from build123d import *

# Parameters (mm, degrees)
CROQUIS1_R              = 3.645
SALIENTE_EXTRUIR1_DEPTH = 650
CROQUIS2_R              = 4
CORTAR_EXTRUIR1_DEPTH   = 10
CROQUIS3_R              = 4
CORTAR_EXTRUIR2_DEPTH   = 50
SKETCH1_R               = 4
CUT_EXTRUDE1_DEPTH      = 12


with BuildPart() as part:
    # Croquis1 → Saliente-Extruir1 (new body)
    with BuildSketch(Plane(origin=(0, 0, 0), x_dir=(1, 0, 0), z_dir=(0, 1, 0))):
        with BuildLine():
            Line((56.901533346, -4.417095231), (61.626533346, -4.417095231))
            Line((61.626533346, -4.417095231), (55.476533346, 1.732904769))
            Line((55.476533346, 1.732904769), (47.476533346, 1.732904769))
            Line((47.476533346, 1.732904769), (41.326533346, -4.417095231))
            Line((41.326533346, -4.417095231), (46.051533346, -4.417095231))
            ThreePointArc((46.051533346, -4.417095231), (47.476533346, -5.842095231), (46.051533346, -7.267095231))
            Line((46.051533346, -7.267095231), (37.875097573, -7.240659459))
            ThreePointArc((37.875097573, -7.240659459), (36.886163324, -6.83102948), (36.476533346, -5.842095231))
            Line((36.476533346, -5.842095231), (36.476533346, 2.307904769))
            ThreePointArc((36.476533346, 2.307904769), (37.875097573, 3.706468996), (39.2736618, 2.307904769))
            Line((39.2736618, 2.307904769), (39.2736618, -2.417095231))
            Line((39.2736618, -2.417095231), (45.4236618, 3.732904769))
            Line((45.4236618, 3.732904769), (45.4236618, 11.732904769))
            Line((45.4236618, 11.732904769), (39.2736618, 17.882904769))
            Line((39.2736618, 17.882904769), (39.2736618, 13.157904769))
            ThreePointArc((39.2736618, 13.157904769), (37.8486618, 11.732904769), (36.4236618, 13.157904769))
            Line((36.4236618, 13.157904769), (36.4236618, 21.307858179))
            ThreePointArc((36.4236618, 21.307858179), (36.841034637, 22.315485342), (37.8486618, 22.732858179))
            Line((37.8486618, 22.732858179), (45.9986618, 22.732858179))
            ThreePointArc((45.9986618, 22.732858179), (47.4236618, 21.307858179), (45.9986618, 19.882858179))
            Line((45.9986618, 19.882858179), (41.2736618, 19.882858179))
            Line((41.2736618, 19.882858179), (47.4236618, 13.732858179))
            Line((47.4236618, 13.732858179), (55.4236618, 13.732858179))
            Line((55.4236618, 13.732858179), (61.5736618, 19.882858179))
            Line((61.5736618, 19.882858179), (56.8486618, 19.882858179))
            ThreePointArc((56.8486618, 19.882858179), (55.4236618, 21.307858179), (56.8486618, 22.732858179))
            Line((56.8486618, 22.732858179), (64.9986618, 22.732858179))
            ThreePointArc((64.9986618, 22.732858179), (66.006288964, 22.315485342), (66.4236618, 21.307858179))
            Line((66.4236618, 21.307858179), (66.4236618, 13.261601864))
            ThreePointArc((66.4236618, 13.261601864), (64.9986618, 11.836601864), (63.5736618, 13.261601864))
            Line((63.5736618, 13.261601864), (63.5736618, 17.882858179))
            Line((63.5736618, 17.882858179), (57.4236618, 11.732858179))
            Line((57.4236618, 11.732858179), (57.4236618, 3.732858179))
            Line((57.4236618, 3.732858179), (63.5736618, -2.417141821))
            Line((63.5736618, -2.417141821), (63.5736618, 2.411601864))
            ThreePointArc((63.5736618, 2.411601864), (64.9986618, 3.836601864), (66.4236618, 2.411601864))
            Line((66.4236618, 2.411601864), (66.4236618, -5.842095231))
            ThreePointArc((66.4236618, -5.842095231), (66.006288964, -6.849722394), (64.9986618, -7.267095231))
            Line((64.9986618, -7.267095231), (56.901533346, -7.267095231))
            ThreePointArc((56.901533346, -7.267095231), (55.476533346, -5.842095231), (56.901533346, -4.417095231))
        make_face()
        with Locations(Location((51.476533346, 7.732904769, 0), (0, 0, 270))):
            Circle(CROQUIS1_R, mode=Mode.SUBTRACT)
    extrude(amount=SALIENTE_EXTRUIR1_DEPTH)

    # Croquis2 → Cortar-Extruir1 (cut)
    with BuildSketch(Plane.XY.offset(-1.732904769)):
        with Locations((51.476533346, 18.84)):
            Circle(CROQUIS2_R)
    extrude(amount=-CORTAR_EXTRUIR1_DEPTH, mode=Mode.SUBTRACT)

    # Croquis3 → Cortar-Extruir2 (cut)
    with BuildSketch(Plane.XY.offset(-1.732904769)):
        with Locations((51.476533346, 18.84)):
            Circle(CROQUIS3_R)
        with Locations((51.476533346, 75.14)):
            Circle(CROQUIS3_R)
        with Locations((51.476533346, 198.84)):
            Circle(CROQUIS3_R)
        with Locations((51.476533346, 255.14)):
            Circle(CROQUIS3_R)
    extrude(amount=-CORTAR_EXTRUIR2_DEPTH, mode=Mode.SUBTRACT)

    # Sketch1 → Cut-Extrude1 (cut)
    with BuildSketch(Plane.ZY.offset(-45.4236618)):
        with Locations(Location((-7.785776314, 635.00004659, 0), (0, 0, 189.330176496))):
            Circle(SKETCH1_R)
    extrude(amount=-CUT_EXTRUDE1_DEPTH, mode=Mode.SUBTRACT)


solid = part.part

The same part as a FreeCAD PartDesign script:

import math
import FreeCAD as App
import Part
import Sketcher

doc = App.newDocument("Part")
body = doc.addObject("PartDesign::Body", "Body")

# Sketch on XZ plane
sketch1 = body.newObject("Sketcher::SketchObject", "Sketch")
sketch1.AttachmentSupport = (doc.getObject("XZ_Plane"), [""])
sketch1.MapMode = "FlatFace"
sketch1.addGeometry([
    Part.LineSegment(App.Vector(61.6, 4.4, 0), App.Vector(56.9, 4.4, 0)),  # 0
    Part.ArcOfCircle(Part.Circle(App.Vector(56.9, 5.8, 0), App.Vector(0, 0, 1), 1.4), math.radians(90), math.radians(270)),  # 1
    Part.LineSegment(App.Vector(56.9, 7.3, 0), App.Vector(65, 7.3, 0)),  # 2
    Part.ArcOfCircle(Part.Circle(App.Vector(65, 5.8, 0), App.Vector(0, 0, 1), 1.4), math.radians(0), math.radians(90)),  # 3
    Part.LineSegment(App.Vector(66.4, 5.8, 0), App.Vector(66.4, -2.4, 0)),  # 4
    Part.ArcOfCircle(Part.Circle(App.Vector(65, -2.4, 0), App.Vector(0, 0, 1), 1.4), math.radians(180), math.radians(360)),  # 5
    Part.LineSegment(App.Vector(63.6, -2.4, 0), App.Vector(63.6, 2.4, 0)),  # 6
    Part.LineSegment(App.Vector(63.6, 2.4, 0), App.Vector(57.4, -3.7, 0)),  # 7
    Part.LineSegment(App.Vector(57.4, -3.7, 0), App.Vector(57.4, -11.7, 0)),  # 8
    Part.LineSegment(App.Vector(57.4, -11.7, 0), App.Vector(63.6, -17.9, 0)),  # 9
    Part.LineSegment(App.Vector(63.6, -17.9, 0), App.Vector(63.6, -13.3, 0)),  # 10
    Part.ArcOfCircle(Part.Circle(App.Vector(65, -13.3, 0), App.Vector(0, 0, 1), 1.4), math.radians(0), math.radians(180)),  # 11
    Part.LineSegment(App.Vector(66.4, -13.3, 0), App.Vector(66.4, -21.3, 0)),  # 12
    Part.ArcOfCircle(Part.Circle(App.Vector(65, -21.3, 0), App.Vector(0, 0, 1), 1.4), math.radians(-90), math.radians(0)),  # 13
    Part.LineSegment(App.Vector(65, -22.7, 0), App.Vector(56.8, -22.7, 0)),  # 14
    Part.ArcOfCircle(Part.Circle(App.Vector(56.8, -21.3, 0), App.Vector(0, 0, 1), 1.4), math.radians(90), math.radians(270)),  # 15
    Part.LineSegment(App.Vector(56.8, -19.9, 0), App.Vector(61.6, -19.9, 0)),  # 16
    Part.LineSegment(App.Vector(61.6, -19.9, 0), App.Vector(55.4, -13.7, 0)),  # 17
    Part.LineSegment(App.Vector(55.4, -13.7, 0), App.Vector(47.4, -13.7, 0)),  # 18
    Part.LineSegment(App.Vector(47.4, -13.7, 0), App.Vector(41.3, -19.9, 0)),  # 19
    Part.LineSegment(App.Vector(41.3, -19.9, 0), App.Vector(46, -19.9, 0)),  # 20
    Part.ArcOfCircle(Part.Circle(App.Vector(46, -21.3, 0), App.Vector(0, 0, 1), 1.4), math.radians(-90), math.radians(90)),  # 21
    Part.LineSegment(App.Vector(46, -22.7, 0), App.Vector(37.8, -22.7, 0)),  # 22
    Part.ArcOfCircle(Part.Circle(App.Vector(37.8, -21.3, 0), App.Vector(0, 0, 1), 1.4), math.radians(-180), math.radians(-90)),  # 23
    Part.LineSegment(App.Vector(36.4, -21.3, 0), App.Vector(36.4, -13.2, 0)),  # 24
    Part.ArcOfCircle(Part.Circle(App.Vector(37.8, -13.2, 0), App.Vector(0, 0, 1), 1.4), math.radians(0), math.radians(180)),  # 25
    Part.LineSegment(App.Vector(39.3, -13.2, 0), App.Vector(39.3, -17.9, 0)),  # 26
    Part.LineSegment(App.Vector(39.3, -17.9, 0), App.Vector(45.4, -11.7, 0)),  # 27
    Part.LineSegment(App.Vector(45.4, -11.7, 0), App.Vector(45.4, -3.7, 0)),  # 28
    Part.LineSegment(App.Vector(45.4, -3.7, 0), App.Vector(39.3, 2.4, 0)),  # 29
    Part.LineSegment(App.Vector(39.3, 2.4, 0), App.Vector(39.3, -2.3, 0)),  # 30
    Part.ArcOfCircle(Part.Circle(App.Vector(37.9, -2.3, 0), App.Vector(0, 0, 1), 1.4), math.radians(180), math.radians(360)),  # 31
    Part.LineSegment(App.Vector(36.5, -2.3, 0), App.Vector(36.5, 5.8, 0)),  # 32
    Part.ArcOfCircle(Part.Circle(App.Vector(37.9, 5.8, 0), App.Vector(0, 0, 1), 1.4), math.radians(90), math.radians(180)),  # 33
    Part.LineSegment(App.Vector(37.9, 7.2, 0), App.Vector(46.1, 7.3, 0)),  # 34
    Part.ArcOfCircle(Part.Circle(App.Vector(46.1, 5.8, 0), App.Vector(0, 0, 1), 1.4), math.radians(-90), math.radians(90)),  # 35
    Part.LineSegment(App.Vector(46.1, 4.4, 0), App.Vector(41.3, 4.4, 0)),  # 36
    Part.LineSegment(App.Vector(41.3, 4.4, 0), App.Vector(47.5, -1.7, 0)),  # 37
    Part.LineSegment(App.Vector(47.5, -1.7, 0), App.Vector(55.5, -1.7, 0)),  # 38
    Part.LineSegment(App.Vector(55.5, -1.7, 0), App.Vector(61.6, 4.4, 0)),  # 39
    Part.Circle(App.Vector(51.5, -7.7, 0), App.Vector(0, 0, 1), 3.6),  # 40
], False)
sketch1.addConstraint([
    Sketcher.Constraint("Tangent", 0, 2, 1, 2),
    Sketcher.Constraint("Tangent", 1, 1, 2, 1),
    Sketcher.Constraint("Tangent", 2, 2, 3, 2),
    Sketcher.Constraint("Tangent", 3, 1, 4, 1),
    Sketcher.Constraint("Tangent", 4, 2, 5, 2),
    Sketcher.Constraint("Tangent", 5, 1, 6, 1),
    Sketcher.Constraint("Coincident", 6, 2, 7, 1),
    Sketcher.Constraint("Coincident", 7, 2, 8, 1),
    Sketcher.Constraint("Coincident", 8, 2, 9, 1),
    Sketcher.Constraint("Coincident", 9, 2, 10, 1),
    Sketcher.Constraint("Tangent", 10, 2, 11, 2),
    Sketcher.Constraint("Tangent", 11, 1, 12, 1),
    Sketcher.Constraint("Tangent", 12, 2, 13, 2),
    Sketcher.Constraint("Tangent", 13, 1, 14, 1),
    Sketcher.Constraint("Tangent", 14, 2, 15, 2),
    Sketcher.Constraint("Tangent", 15, 1, 16, 1),
    Sketcher.Constraint("Coincident", 16, 2, 17, 1),
    Sketcher.Constraint("Coincident", 17, 2, 18, 1),
    Sketcher.Constraint("Coincident", 18, 2, 19, 1),
    Sketcher.Constraint("Coincident", 19, 2, 20, 1),
    Sketcher.Constraint("Tangent", 20, 2, 21, 2),
    Sketcher.Constraint("Tangent", 21, 1, 22, 1),
    Sketcher.Constraint("Tangent", 22, 2, 23, 2),
    Sketcher.Constraint("Tangent", 23, 1, 24, 1),
    Sketcher.Constraint("Tangent", 24, 2, 25, 2),
    Sketcher.Constraint("Tangent", 25, 1, 26, 1),
    Sketcher.Constraint("Coincident", 26, 2, 27, 1),
    Sketcher.Constraint("Coincident", 27, 2, 28, 1),
    Sketcher.Constraint("Coincident", 28, 2, 29, 1),
    Sketcher.Constraint("Coincident", 29, 2, 30, 1),
    Sketcher.Constraint("Tangent", 30, 2, 31, 2),
    Sketcher.Constraint("Tangent", 31, 1, 32, 1),
    Sketcher.Constraint("Tangent", 32, 2, 33, 2),
    Sketcher.Constraint("Coincident", 33, 1, 34, 1),
    Sketcher.Constraint("Coincident", 34, 2, 35, 2),
    Sketcher.Constraint("Tangent", 35, 1, 36, 1),
    Sketcher.Constraint("Coincident", 36, 2, 37, 1),
    Sketcher.Constraint("Coincident", 37, 2, 38, 1),
    Sketcher.Constraint("Coincident", 38, 2, 39, 1),
    Sketcher.Constraint("Coincident", 39, 2, 0, 1),
    Sketcher.Constraint("Horizontal", 0),
    Sketcher.Constraint("Horizontal", 2),
    Sketcher.Constraint("Vertical", 4),
    Sketcher.Constraint("Vertical", 6),
    Sketcher.Constraint("Vertical", 8),
    Sketcher.Constraint("Vertical", 10),
    Sketcher.Constraint("Vertical", 12),
    Sketcher.Constraint("Horizontal", 14),
    Sketcher.Constraint("Horizontal", 16),
    Sketcher.Constraint("Horizontal", 18),
    Sketcher.Constraint("Horizontal", 20),
    Sketcher.Constraint("Horizontal", 22),
    Sketcher.Constraint("Vertical", 24),
    Sketcher.Constraint("Vertical", 26),
    Sketcher.Constraint("Vertical", 28),
    Sketcher.Constraint("Vertical", 30),
    Sketcher.Constraint("Vertical", 32),
    Sketcher.Constraint("Horizontal", 36),
    Sketcher.Constraint("Horizontal", 38),
    Sketcher.Constraint("Equal", 1, 3),
    Sketcher.Constraint("Equal", 3, 5),
    Sketcher.Constraint("Equal", 5, 11),
    Sketcher.Constraint("Equal", 11, 13),
    Sketcher.Constraint("Equal", 13, 15),
    Sketcher.Constraint("Equal", 15, 21),
    Sketcher.Constraint("Equal", 21, 23),
    Sketcher.Constraint("Equal", 23, 25),
    Sketcher.Constraint("Equal", 31, 33),
    Sketcher.Constraint("Equal", 25, 35),
    Sketcher.Constraint("Perpendicular", 7, 9),
    Sketcher.Constraint("Parallel", 9, 17),
    Sketcher.Constraint("Perpendicular", 17, 19),
    Sketcher.Constraint("Parallel", 19, 27),
    Sketcher.Constraint("Perpendicular", 27, 29),
    Sketcher.Constraint("Parallel", 29, 37),
    Sketcher.Constraint("Perpendicular", 37, 39),
    Sketcher.Constraint("Horizontal", 15, 3, 21, 3),
    Sketcher.Constraint("Horizontal", 3, 3, 33, 3),
    Sketcher.Constraint("Horizontal", 33, 3, 35, 3),
    Sketcher.Constraint("Vertical", 5, 3, 11, 3),
    Sketcher.Constraint("Vertical", 26, 2, 29, 2),
    Sketcher.Constraint("Vertical", 31, 3, 33, 1),
    Sketcher.Constraint("Vertical", 35, 3, 34, 2),
    Sketcher.Constraint("Equal", 0, 16),
    Sketcher.Constraint("Equal", 16, 20),
    Sketcher.Constraint("Equal", 14, 22),
    Sketcher.Constraint("Equal", 20, 36),
    Sketcher.Constraint("Equal", 18, 38),
    Sketcher.Constraint("Equal", 38, 8),
    Sketcher.Constraint("Equal", 36, 26),
    Sketcher.Constraint("Equal", 8, 28),
    Sketcher.Constraint("Equal", 26, 30),
    Sketcher.Constraint("Equal", 22, 32),
    Sketcher.Constraint("Equal", 7, 9),
    Sketcher.Constraint("Equal", 9, 17),
    Sketcher.Constraint("Equal", 19, 27),
    Sketcher.Constraint("Equal", 29, 37),
    Sketcher.Constraint("Diameter", 40, 7.29),
    Sketcher.Constraint("DistanceX", 18, 2, 18, 1, 8.0),
    Sketcher.Constraint("Radius", 1, 1.425),
    Sketcher.Constraint("DistanceX", 21, 3, 13, 3, 19.0),
    Sketcher.Constraint("DistanceX", 8, 2, 11, 1, 9.0),
    Sketcher.Constraint("DistanceY", 15, 1, 9, 2, 2.0),
    Sketcher.Constraint("DistanceX", 16, 2, 9, 2, 2.0),
    Sketcher.Constraint("DistanceY", 27, 2, 40, 3, 4.0),
    Sketcher.Constraint("DistanceX", 37, 2, 40, 3, 4.0),
    Sketcher.Constraint("DistanceY", 11, 3, 5, 3, 10.85),
    Sketcher.Constraint("Radius", 31, 1.398564),
    Sketcher.Constraint("DistanceX", 32, 2, 34, 2, 9.575),
    Sketcher.Constraint("DistanceY", 5, 3, -1, 1, 2.411602),
    Sketcher.Constraint("DistanceY", 4, 2, 4, 1, 8.253697),
    Sketcher.Constraint("DistanceY", 6, 1, 6, 2, 4.828744),
    Sketcher.Constraint("DistanceX", -1, 1, 3, 3, 64.998662),
])
pad1 = body.newObject("PartDesign::Pad", "Pad")
pad1.Profile = sketch1
pad1.Length = 650
pad1.Reversed = True

# Sketch on XY plane
sketch2 = body.newObject("Sketcher::SketchObject", "Sketch001")
sketch2.AttachmentSupport = (doc.getObject("XY_Plane"), [""])
sketch2.MapMode = "FlatFace"
sketch2.AttachmentOffset = App.Placement(App.Vector(0, 0, -1.732905), App.Rotation())
sketch2.addGeometry(Part.Circle(App.Vector(51.5, 18.8, 0), App.Vector(0, 0, 1), 4), False)
sketch2.addConstraint([
    Sketcher.Constraint("Diameter", 0, 8.0),
    Sketcher.Constraint("DistanceY", -1, 1, 0, 3, 18.84),
    Sketcher.Constraint("DistanceX", -1, 1, 0, 3, 51.476533),
])
pocket1 = body.newObject("PartDesign::Pocket", "Pocket")
pocket1.Profile = sketch2
pocket1.Length = 10

# Sketch on XY plane
sketch3 = body.newObject("Sketcher::SketchObject", "Sketch002")
sketch3.AttachmentSupport = (doc.getObject("XY_Plane"), [""])
sketch3.MapMode = "FlatFace"
sketch3.AttachmentOffset = App.Placement(App.Vector(0, 0, -1.732905), App.Rotation())
sketch3.addGeometry([
    Part.Circle(App.Vector(51.5, 18.8, 0), App.Vector(0, 0, 1), 4),
    Part.Circle(App.Vector(51.5, 75.1, 0), App.Vector(0, 0, 1), 4),
    Part.Circle(App.Vector(51.5, 198.8, 0), App.Vector(0, 0, 1), 4),
    Part.Circle(App.Vector(51.5, 255.1, 0), App.Vector(0, 0, 1), 4),
], False)
sketch3.addConstraint([
    Sketcher.Constraint("Equal", 0, 1),
    Sketcher.Constraint("Equal", 1, 2),
    Sketcher.Constraint("Equal", 2, 3),
    Sketcher.Constraint("Vertical", 0, 3, 1, 3),
    Sketcher.Constraint("Vertical", 1, 3, 2, 3),
    Sketcher.Constraint("Vertical", 2, 3, 3, 3),
    Sketcher.Constraint("Diameter", 0, 8.0),
    Sketcher.Constraint("DistanceY", 0, 3, 2, 3, 180.0),
    Sketcher.Constraint("DistanceY", 1, 3, 3, 3, 180.0),
    Sketcher.Constraint("DistanceY", 0, 3, 1, 3, 56.3),
    Sketcher.Constraint("DistanceY", -1, 1, 0, 3, 18.84),
    Sketcher.Constraint("DistanceX", -1, 1, 0, 3, 51.476533),
])
pocket2 = body.newObject("PartDesign::Pocket", "Pocket001")
pocket2.Profile = sketch3
pocket2.Length = 50

# Sketch on YZ plane
sketch4 = body.newObject("Sketcher::SketchObject", "Sketch003")
sketch4.AttachmentSupport = (doc.getObject("YZ_Plane"), [""])
sketch4.MapMode = "FlatFace"
sketch4.AttachmentOffset = App.Placement(App.Vector(0, 0, 45.423662), App.Rotation())
sketch4.addGeometry(Part.Circle(App.Vector(635, -7.8, 0), App.Vector(0, 0, 1), 4), False)
sketch4.addConstraint([
    Sketcher.Constraint("Diameter", 0, 8.0),
    Sketcher.Constraint("DistanceX", -1, 1, 0, 3, 635.000047),
    Sketcher.Constraint("DistanceY", 0, 3, -1, 1, 7.785776),
])
pocket3 = body.newObject("PartDesign::Pocket", "Pocket002")
pocket3.Profile = sketch4
pocket3.Length = 12
pocket3.Reversed = True

doc.recompute()
